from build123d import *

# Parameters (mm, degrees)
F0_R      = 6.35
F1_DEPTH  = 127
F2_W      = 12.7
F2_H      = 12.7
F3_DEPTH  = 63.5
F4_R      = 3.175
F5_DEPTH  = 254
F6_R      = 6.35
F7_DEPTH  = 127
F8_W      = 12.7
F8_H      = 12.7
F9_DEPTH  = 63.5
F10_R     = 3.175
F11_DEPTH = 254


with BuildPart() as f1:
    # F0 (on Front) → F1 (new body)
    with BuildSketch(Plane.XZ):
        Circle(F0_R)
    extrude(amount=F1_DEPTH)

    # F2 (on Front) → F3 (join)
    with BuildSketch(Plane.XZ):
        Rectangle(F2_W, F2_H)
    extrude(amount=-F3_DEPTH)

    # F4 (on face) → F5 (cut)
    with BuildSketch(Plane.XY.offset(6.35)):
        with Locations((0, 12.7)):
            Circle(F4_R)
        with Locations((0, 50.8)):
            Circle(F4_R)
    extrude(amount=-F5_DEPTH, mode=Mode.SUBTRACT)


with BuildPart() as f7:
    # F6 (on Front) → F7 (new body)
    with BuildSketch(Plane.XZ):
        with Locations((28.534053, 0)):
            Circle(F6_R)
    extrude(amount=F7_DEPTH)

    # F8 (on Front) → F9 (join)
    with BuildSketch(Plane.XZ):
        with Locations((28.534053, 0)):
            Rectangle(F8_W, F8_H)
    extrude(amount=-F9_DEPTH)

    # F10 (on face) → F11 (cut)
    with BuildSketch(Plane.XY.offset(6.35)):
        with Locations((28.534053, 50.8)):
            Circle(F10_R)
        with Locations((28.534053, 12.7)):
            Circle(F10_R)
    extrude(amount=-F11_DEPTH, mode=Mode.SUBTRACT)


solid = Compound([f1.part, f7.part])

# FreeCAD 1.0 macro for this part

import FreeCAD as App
import Part
import Sketcher
from FreeCAD import Vector
Q = App.Units.Quantity

doc = App.newDocument("Part")
params = doc.addObject("Spreadsheet::Sheet", "Params")
for row, (alias, value) in enumerate([
    ("sketch1_diameter", "0.5 in"),
    ("pad1_length", "5 in"),
    ("sketch2_width", "0.5 in"),
    ("pad2_length", "2.5 in"),
    ("sketch3_diameter", "0.25 in"),
    ("pocket1_length", "10 in"),
    ("sketch4_diameter", "0.5 in"),
    ("pad3_length", "5 in"),
    ("sketch5_width", "0.5 in"),
    ("pad4_length", "2.5 in"),
    ("sketch6_diameter", "0.25 in"),
    ("pocket2_length", "10 in"),
], start=1):
    params.set(f"A{row}", alias)
    params.set(f"B{row}", "=" + value)
    params.setAlias(f"B{row}", alias)

body = doc.addObject("PartDesign::Body", "Body")

sketch1 = body.newObject("Sketcher::SketchObject", "Sketch")
sketch1.AttachmentSupport = (doc.getObject("XZ_Plane"), [""])
sketch1.MapMode = "FlatFace"
sketch1.addGeometry(Part.Circle(Vector(0, 0, 0), Vector(0, 0, 1), 6.35), False)
sketch1.addConstraint(Sketcher.Constraint("Coincident", 0, 3, -1, 1))
sketch1.addConstraint(Sketcher.Constraint("Diameter", 0, Q("0.5 in")))
sketch1.setExpression("Constraints[1]", "Params.sketch1_diameter")
pad1 = body.newObject("PartDesign::Pad", "Pad")
pad1.Profile = sketch1
pad1.setExpression("Length", "Params.pad1_length")

sketch2 = body.newObject("Sketcher::SketchObject", "Sketch001")
sketch2.AttachmentSupport = (doc.getObject("XZ_Plane"), [""])
sketch2.MapMode = "FlatFace"
sketch2.addGeometry(Part.LineSegment(Vector(-6.35, 6.35, 0), Vector(-6.35, -6.35, 0)), False)
sketch2.addGeometry(Part.LineSegment(Vector(-6.35, -6.35, 0), Vector(6.35, -6.35, 0)), False)
sketch2.addGeometry(Part.LineSegment(Vector(6.35, -6.35, 0), Vector(6.35, 6.35, 0)), False)
sketch2.addGeometry(Part.LineSegment(Vector(6.35, 6.35, 0), Vector(-6.35, 6.35, 0)), False)
sketch2.addConstraint(Sketcher.Constraint("Coincident", 0, 2, 1, 1))
sketch2.addConstraint(Sketcher.Constraint("Coincident", 1, 2, 2, 1))
sketch2.addConstraint(Sketcher.Constraint("Coincident", 2, 2, 3, 1))
sketch2.addConstraint(Sketcher.Constraint("Coincident", 3, 2, 0, 1))
sketch2.addConstraint(Sketcher.Constraint("Vertical", 0))
sketch2.addConstraint(Sketcher.Constraint("Horizontal", 1))
sketch2.addConstraint(Sketcher.Constraint("Vertical", 2))
sketch2.addConstraint(Sketcher.Constraint("Horizontal", 3))
sketch2.addConstraint(Sketcher.Constraint("Symmetric", 0, 2, 2, 2, -1, 1))
sketch2.addConstraint(Sketcher.Constraint("Equal", 3, 0))
sketch2.addConstraint(Sketcher.Constraint("DistanceX", 1, 1, 1, 2, Q("0.5 in")))
sketch2.setExpression("Constraints[10]", "Params.sketch2_width")
pad2 = body.newObject("PartDesign::Pad", "Pad001")
pad2.Profile = sketch2
pad2.setExpression("Length", "Params.pad2_length")
pad2.Reversed = True

sketch3 = body.newObject("Sketcher::SketchObject", "Sketch002")
sketch3.AttachmentSupport = (doc.getObject("XY_Plane"), [""])
sketch3.MapMode = "FlatFace"
sketch3.AttachmentOffset = App.Placement(Vector(0, 0, 0.25 * 25.4), App.Rotation())
sketch3.addGeometry(Part.Circle(Vector(0, 12.7, 0), Vector(0, 0, 1), 3.175), False)
sketch3.addGeometry(Part.Circle(Vector(0, 50.8, 0), Vector(0, 0, 1), 3.175), False)
sketch3.addConstraint(Sketcher.Constraint("Equal", 0, 1))
sketch3.addConstraint(Sketcher.Constraint("PointOnObject", 0, 3, -2))
sketch3.addConstraint(Sketcher.Constraint("PointOnObject", 1, 3, -2))
sketch3.addConstraint(Sketcher.Constraint("Diameter", 0, Q("0.25 in")))
sketch3.addConstraint(Sketcher.Constraint("DistanceY", -1, 1, 1, 3, Q("2 in")))
sketch3.addConstraint(Sketcher.Constraint("DistanceY", -1, 1, 0, 3, Q("0.5 in")))
sketch3.setExpression("Constraints[3]", "Params.sketch3_diameter")
pocket1 = body.newObject("PartDesign::Pocket", "Pocket")
pocket1.Profile = sketch3
pocket1.setExpression("Length", "Params.pocket1_length")
body2 = doc.addObject("PartDesign::Body", "Body001")

sketch4 = body2.newObject("Sketcher::SketchObject", "Sketch003")
sketch4.AttachmentSupport = (doc.getObject("XZ_Plane001"), [""])
sketch4.MapMode = "FlatFace"
sketch4.addGeometry(Part.Circle(Vector(28.534053, 0, 0), Vector(0, 0, 1), 6.35), False)
sketch4.addConstraint(Sketcher.Constraint("PointOnObject", 0, 3, -1))
sketch4.addConstraint(Sketcher.Constraint("Diameter", 0, Q("0.5 in")))
sketch4.addConstraint(Sketcher.Constraint("DistanceX", -1, 1, 0, 3, Q("28.534053 mm")))
sketch4.setExpression("Constraints[1]", "Params.sketch4_diameter")
pad3 = body2.newObject("PartDesign::Pad", "Pad002")
pad3.Profile = sketch4
pad3.setExpression("Length", "Params.pad3_length")

sketch5 = body2.newObject("Sketcher::SketchObject", "Sketch004")
sketch5.AttachmentSupport = (doc.getObject("XZ_Plane001"), [""])
sketch5.MapMode = "FlatFace"
sketch5.addGeometry(Part.LineSegment(Vector(22.184053, 6.35, 0), Vector(22.184053, -6.35, 0)), False)
sketch5.addGeometry(Part.LineSegment(Vector(22.184053, -6.35, 0), Vector(34.884053, -6.35, 0)), False)
sketch5.addGeometry(Part.LineSegment(Vector(34.884053, -6.35, 0), Vector(34.884053, 6.35, 0)), False)
sketch5.addGeometry(Part.LineSegment(Vector(34.884053, 6.35, 0), Vector(22.184053, 6.35, 0)), False)
sketch5.addConstraint(Sketcher.Constraint("Coincident", 0, 2, 1, 1))
sketch5.addConstraint(Sketcher.Constraint("Coincident", 1, 2, 2, 1))
sketch5.addConstraint(Sketcher.Constraint("Coincident", 2, 2, 3, 1))
sketch5.addConstraint(Sketcher.Constraint("Coincident", 3, 2, 0, 1))
sketch5.addConstraint(Sketcher.Constraint("Vertical", 0))
sketch5.addConstraint(Sketcher.Constraint("Horizontal", 1))
sketch5.addConstraint(Sketcher.Constraint("Vertical", 2))
sketch5.addConstraint(Sketcher.Constraint("Horizontal", 3))
sketch5.addConstraint(Sketcher.Constraint("Equal", 3, 0))
sketch5.addConstraint(Sketcher.Constraint("DistanceX", 1, 1, 1, 2, Q("0.5 in")))
sketch5.addConstraint(Sketcher.Constraint("DistanceY", 0, 2, -1, 1, Q("0.25 in")))
sketch5.addConstraint(Sketcher.Constraint("DistanceX", -1, 1, 0, 2, Q("22.184053 mm")))
sketch5.setExpression("Constraints[9]", "Params.sketch5_width")
pad4 = body2.newObject("PartDesign::Pad", "Pad003")
pad4.Profile = sketch5
pad4.setExpression("Length", "Params.pad4_length")
pad4.Reversed = True

sketch6 = body2.newObject("Sketcher::SketchObject", "Sketch005")
sketch6.AttachmentSupport = (doc.getObject("XY_Plane001"), [""])
sketch6.MapMode = "FlatFace"
sketch6.AttachmentOffset = App.Placement(Vector(0, 0, 0.25 * 25.4), App.Rotation())
sketch6.addGeometry(Part.Circle(Vector(28.534053, 50.8, 0), Vector(0, 0, 1), 3.175), False)
sketch6.addGeometry(Part.Circle(Vector(28.534053, 12.7, 0), Vector(0, 0, 1), 3.175), False)
sketch6.addConstraint(Sketcher.Constraint("Equal", 0, 1))
sketch6.addConstraint(Sketcher.Constraint("Vertical", 0, 3, 1, 3))
sketch6.addConstraint(Sketcher.Constraint("Diameter", 0, Q("0.25 in")))
sketch6.addConstraint(Sketcher.Constraint("DistanceY", -1, 1, 0, 3, Q("2 in")))
sketch6.addConstraint(Sketcher.Constraint("DistanceY", -1, 1, 1, 3, Q("0.5 in")))
sketch6.addConstraint(Sketcher.Constraint("DistanceX", -1, 1, 0, 3, Q("28.534053 mm")))
sketch6.setExpression("Constraints[2]", "Params.sketch6_diameter")
pocket2 = body2.newObject("PartDesign::Pocket", "Pocket001")
pocket2.Profile = sketch6
pocket2.setExpression("Length", "Params.pocket2_length")

doc.recompute()
